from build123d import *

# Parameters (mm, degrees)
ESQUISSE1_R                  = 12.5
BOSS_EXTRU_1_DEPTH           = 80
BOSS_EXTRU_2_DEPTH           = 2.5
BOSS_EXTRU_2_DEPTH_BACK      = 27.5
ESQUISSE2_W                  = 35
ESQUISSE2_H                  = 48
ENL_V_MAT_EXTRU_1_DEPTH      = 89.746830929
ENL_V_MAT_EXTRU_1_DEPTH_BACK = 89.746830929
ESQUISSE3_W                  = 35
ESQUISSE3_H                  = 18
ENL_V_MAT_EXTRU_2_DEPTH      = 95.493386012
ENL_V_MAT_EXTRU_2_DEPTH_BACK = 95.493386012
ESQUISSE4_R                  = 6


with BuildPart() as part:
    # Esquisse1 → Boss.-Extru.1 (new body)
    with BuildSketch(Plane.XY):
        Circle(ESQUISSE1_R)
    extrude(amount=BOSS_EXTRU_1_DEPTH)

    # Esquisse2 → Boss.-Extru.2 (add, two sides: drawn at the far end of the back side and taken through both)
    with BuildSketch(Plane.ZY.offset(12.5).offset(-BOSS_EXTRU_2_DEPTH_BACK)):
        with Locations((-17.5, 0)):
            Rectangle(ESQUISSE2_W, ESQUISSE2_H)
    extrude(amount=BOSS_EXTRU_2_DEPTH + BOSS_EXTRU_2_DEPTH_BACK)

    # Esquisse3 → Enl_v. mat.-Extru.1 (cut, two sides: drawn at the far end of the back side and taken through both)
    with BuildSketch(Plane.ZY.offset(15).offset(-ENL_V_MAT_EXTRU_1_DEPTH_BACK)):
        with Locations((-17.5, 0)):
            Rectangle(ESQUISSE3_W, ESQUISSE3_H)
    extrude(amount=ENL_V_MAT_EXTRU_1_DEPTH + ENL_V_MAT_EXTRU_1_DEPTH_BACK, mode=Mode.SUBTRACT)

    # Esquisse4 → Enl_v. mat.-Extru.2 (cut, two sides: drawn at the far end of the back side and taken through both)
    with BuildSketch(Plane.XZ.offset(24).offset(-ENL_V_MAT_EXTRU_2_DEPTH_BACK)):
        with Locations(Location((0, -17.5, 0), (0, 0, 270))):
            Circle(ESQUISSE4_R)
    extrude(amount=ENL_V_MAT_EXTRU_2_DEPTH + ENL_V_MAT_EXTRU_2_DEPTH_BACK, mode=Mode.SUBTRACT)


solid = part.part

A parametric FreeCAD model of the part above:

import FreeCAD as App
import Part
import Sketcher

V = App.Vector

doc = App.newDocument("Part")
body = doc.addObject("PartDesign::Body", "Body")

# Sketch on XY plane
sketch1 = body.newObject("Sketcher::SketchObject", "Sketch")
sketch1.AttachmentSupport = (doc.getObject("XY_Plane"), [""])
sketch1.MapMode = "FlatFace"
sketch1.addGeometry(Part.Circle(V(0, 0, 0), V(0, 0, 1), 12), False)
sketch1.addConstraint(Sketcher.Constraint("Coincident", 0, 3, -1, 1))
sketch1.addConstraint(Sketcher.Constraint("Diameter", 0, 25.0))
pad1 = body.newObject("PartDesign::Pad", "Pad")
pad1.Profile = sketch1
pad1.Length = 80

# Sketch on YZ plane
sketch2 = body.newObject("Sketcher::SketchObject", "Sketch001")
sketch2.AttachmentSupport = (doc.getObject("YZ_Plane"), [""])
sketch2.MapMode = "FlatFace"
sketch2.AttachmentOffset = App.Placement(V(0, 0, -12.5), App.Rotation())
sketch2.addGeometry(Part.LineSegment(V(24, -35, 0), V(-24, -35, 0)), False)
sketch2.addGeometry(Part.LineSegment(V(-24, -35, 0), V(-24, 0, 0)), False)
sketch2.addGeometry(Part.LineSegment(V(-24, 0, 0), V(24, 0, 0)), False)
sketch2.addGeometry(Part.LineSegment(V(24, 0, 0), V(24, -35, 0)), False)
sketch2.addConstraint(Sketcher.Constraint("Coincident", 0, 2, 1, 1))
sketch2.addConstraint(Sketcher.Constraint("Coincident", 1, 2, 2, 1))
sketch2.addConstraint(Sketcher.Constraint("Coincident", 2, 2, 3, 1))
sketch2.addConstraint(Sketcher.Constraint("Coincident", 3, 2, 0, 1))
sketch2.addConstraint(Sketcher.Constraint("Horizontal", 0))
sketch2.addConstraint(Sketcher.Constraint("Vertical", 1))
sketch2.addConstraint(Sketcher.Constraint("Horizontal", 2))
sketch2.addConstraint(Sketcher.Constraint("Vertical", 3))
sketch2.addConstraint(Sketcher.Constraint("Symmetric", 1, 2, 2, 2, -1, 1))
sketch2.addConstraint(Sketcher.Constraint("DistanceX", 0, 2, 0, 1, 48.0))
sketch2.addConstraint(Sketcher.Constraint("DistanceY", 1, 1, 1, 2, 35.0))
pad2 = body.newObject("PartDesign::Pad", "Pad001")
pad2.Profile = sketch2
pad2.Type = "TwoLengths"
pad2.Length = 2.5
pad2.Length2 = 27.5
pad2.Reversed = True

# Sketch on YZ plane
sketch3 = body.newObject("Sketcher::SketchObject", "Sketch002")
sketch3.AttachmentSupport = (doc.getObject("YZ_Plane"), [""])
sketch3.MapMode = "FlatFace"
sketch3.AttachmentOffset = App.Placement(V(0, 0, -15), App.Rotation())
sketch3.addGeometry(Part.LineSegment(V(9, -35, 0), V(-9, -35, 0)), False)
sketch3.addGeometry(Part.LineSegment(V(-9, -35, 0), V(-9, 0, 0)), False)
sketch3.addGeometry(Part.LineSegment(V(-9, 0, 0), V(9, 0, 0)), False)
sketch3.addGeometry(Part.LineSegment(V(9, 0, 0), V(9, -35, 0)), False)
sketch3.addConstraint(Sketcher.Constraint("Coincident", 0, 2, 1, 1))
sketch3.addConstraint(Sketcher.Constraint("Coincident", 1, 2, 2, 1))
sketch3.addConstraint(Sketcher.Constraint("Coincident", 2, 2, 3, 1))
sketch3.addConstraint(Sketcher.Constraint("Coincident", 3, 2, 0, 1))
sketch3.addConstraint(Sketcher.Constraint("Horizontal", 0))
sketch3.addConstraint(Sketcher.Constraint("Vertical", 1))
sketch3.addConstraint(Sketcher.Constraint("Horizontal", 2))
sketch3.addConstraint(Sketcher.Constraint("Vertical", 3))
sketch3.addConstraint(Sketcher.Constraint("Symmetric", 1, 2, 2, 2, -1, 1))
sketch3.addConstraint(Sketcher.Constraint("DistanceX", 0, 2, 0, 1, 18.0))
sketch3.addConstraint(Sketcher.Constraint("DistanceY", 1, 1, 1, 2, 35.0))
pocket1 = body.newObject("PartDesign::Pocket", "Pocket")
pocket1.Profile = sketch3
pocket1.Type = "ThroughAll"
pocket1.Midplane = True

# Sketch on XZ plane
sketch4 = body.newObject("Sketcher::SketchObject", "Sketch003")
sketch4.AttachmentSupport = (doc.getObject("XZ_Plane"), [""])
sketch4.MapMode = "FlatFace"
sketch4.AttachmentOffset = App.Placement(V(0, 0, 24), App.Rotation())
sketch4.addGeometry(Part.Circle(V(0, -18, 0), V(0, 0, 1), 6), False)
sketch4.addConstraint(Sketcher.Constraint("PointOnObject", 0, 3, -2))
sketch4.addConstraint(Sketcher.Constraint("Diameter", 0, 12.0))
sketch4.addConstraint(Sketcher.Constraint("DistanceY", 0, 3, -1, 1, 17.5))
pocket2 = body.newObject("PartDesign::Pocket", "Pocket001")
pocket2.Profile = sketch4
pocket2.Type = "ThroughAll"
pocket2.Midplane = True

doc.recompute()
